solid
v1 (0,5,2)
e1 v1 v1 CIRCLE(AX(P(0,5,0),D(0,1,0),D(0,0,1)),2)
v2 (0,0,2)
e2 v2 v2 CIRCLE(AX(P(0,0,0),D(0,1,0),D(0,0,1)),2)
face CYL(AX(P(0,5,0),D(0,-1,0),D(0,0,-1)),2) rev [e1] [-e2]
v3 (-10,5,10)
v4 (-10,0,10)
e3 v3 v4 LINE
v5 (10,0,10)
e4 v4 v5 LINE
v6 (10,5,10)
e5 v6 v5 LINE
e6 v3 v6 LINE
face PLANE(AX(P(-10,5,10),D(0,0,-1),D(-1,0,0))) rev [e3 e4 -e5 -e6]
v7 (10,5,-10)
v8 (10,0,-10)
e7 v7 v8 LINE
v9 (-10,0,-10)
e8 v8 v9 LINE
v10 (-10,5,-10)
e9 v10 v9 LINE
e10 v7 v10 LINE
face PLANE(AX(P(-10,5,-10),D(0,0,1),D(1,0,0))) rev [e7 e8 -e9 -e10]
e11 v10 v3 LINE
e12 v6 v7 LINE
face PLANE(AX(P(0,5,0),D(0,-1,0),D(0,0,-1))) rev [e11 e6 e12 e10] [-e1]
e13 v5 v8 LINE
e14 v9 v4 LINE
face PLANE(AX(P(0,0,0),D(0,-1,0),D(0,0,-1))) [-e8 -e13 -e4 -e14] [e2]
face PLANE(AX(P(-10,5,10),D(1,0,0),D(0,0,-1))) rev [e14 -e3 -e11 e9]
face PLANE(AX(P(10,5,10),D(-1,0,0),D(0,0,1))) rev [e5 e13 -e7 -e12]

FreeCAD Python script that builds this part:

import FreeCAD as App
import Part
import Sketcher


def add_polygon(sketch, points):
    """Adds a closed chain of lines whose ends are joined by coincident constraints."""
    first, n = sketch.GeometryCount, len(points)
    for a, b in zip(points, points[1:] + points[:1]):
        sketch.addGeometry(Part.LineSegment(App.Vector(*a, 0), App.Vector(*b, 0)), False)
    for i in range(n):
        sketch.addConstraint(Sketcher.Constraint("Coincident", first + i, 2, first + (i + 1) % n, 1))

doc = App.newDocument("Part")
body = doc.addObject("PartDesign::Body", "Body")

# Sketch on XZ plane
sketch1 = body.newObject("Sketcher::SketchObject", "Sketch")
sketch1.AttachmentSupport = (doc.getObject("XZ_Plane"), [""])
sketch1.MapMode = "FlatFace"
add_polygon(sketch1, [(-10, -10), (-10, 10), (10, 10), (10, -10)])  # lines 0-3
sketch1.addGeometry(Part.Circle(App.Vector(0, 0, 0), App.Vector(0, 0, 1), 2), False)  # 4
sketch1.addConstraint([
    Sketcher.Constraint("Vertical", 0),
    Sketcher.Constraint("Horizontal", 1),
    Sketcher.Constraint("Vertical", 2),
    Sketcher.Constraint("Horizontal", 3),
    Sketcher.Constraint("Coincident", 4, 3, -1, 1),
    Sketcher.Constraint("Symmetric", 0, 2, 2, 2, -1, 1),
    Sketcher.Constraint("Equal", 3, 0),
    Sketcher.Constraint("Diameter", 4, 4.0),
    Sketcher.Constraint("DistanceX", 1, 1, 1, 2, 20.0),
])
pad1 = body.newObject("PartDesign::Pad", "Pad")
pad1.Profile = sketch1
pad1.Length = 5
pad1.Reversed = True

doc.recompute()
